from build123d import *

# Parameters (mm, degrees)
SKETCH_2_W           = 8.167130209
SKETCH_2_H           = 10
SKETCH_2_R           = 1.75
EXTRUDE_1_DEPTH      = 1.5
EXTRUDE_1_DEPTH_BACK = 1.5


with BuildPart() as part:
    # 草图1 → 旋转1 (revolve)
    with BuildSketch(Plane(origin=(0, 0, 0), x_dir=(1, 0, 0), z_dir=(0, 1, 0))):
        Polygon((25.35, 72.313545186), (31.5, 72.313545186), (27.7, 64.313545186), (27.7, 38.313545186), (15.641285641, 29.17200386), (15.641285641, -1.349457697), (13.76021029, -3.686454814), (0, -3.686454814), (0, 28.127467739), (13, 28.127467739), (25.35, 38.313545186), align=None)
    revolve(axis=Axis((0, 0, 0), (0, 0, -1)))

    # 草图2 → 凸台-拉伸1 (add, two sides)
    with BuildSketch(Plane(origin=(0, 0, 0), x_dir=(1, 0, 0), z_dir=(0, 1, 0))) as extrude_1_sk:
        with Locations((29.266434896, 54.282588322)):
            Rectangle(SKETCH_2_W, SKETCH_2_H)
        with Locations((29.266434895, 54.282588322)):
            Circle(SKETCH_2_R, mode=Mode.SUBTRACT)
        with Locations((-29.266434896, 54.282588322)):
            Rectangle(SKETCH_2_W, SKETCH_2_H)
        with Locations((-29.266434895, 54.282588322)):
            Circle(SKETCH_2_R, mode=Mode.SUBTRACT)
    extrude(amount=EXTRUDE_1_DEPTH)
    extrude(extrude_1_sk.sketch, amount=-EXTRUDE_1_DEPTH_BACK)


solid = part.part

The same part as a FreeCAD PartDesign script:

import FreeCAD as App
import Part
import Sketcher
from FreeCAD import Vector

doc = App.newDocument("Part")
body = doc.addObject("PartDesign::Body", "Body")

sketch1 = body.newObject("Sketcher::SketchObject", "Sketch")
sketch1.AttachmentSupport = (doc.getObject("XZ_Plane"), [""])
sketch1.MapMode = "FlatFace"
sketch1.addGeometry(Part.LineSegment(Vector(31.5, -72.3, 0), Vector(25.4, -72.3, 0)), False)
sketch1.addGeometry(Part.LineSegment(Vector(25.4, -72.3, 0), Vector(25.4, -38.3, 0)), False)
sketch1.addGeometry(Part.LineSegment(Vector(25.4, -38.3, 0), Vector(13, -28.1, 0)), False)
sketch1.addGeometry(Part.LineSegment(Vector(13, -28.1, 0), Vector(0, -28.1, 0)), False)
sketch1.addGeometry(Part.LineSegment(Vector(0, -28.1, 0), Vector(0, 3.7, 0)), False)
sketch1.addGeometry(Part.LineSegment(Vector(0, 3.7, 0), Vector(13.8, 3.7, 0)), False)
sketch1.addGeometry(Part.LineSegment(Vector(13.8, 3.7, 0), Vector(15.6, 1.3, 0)), False)
sketch1.addGeometry(Part.LineSegment(Vector(15.6, 1.3, 0), Vector(15.6, -29.2, 0)), False)
sketch1.addGeometry(Part.LineSegment(Vector(15.6, -29.2, 0), Vector(27.7, -38.3, 0)), False)
sketch1.addGeometry(Part.LineSegment(Vector(27.7, -38.3, 0), Vector(27.7, -64.3, 0)), False)
sketch1.addGeometry(Part.LineSegment(Vector(27.7, -64.3, 0), Vector(31.5, -72.3, 0)), False)
sketch1.addConstraint(Sketcher.Constraint("Coincident", 0, 2, 1, 1))
sketch1.addConstraint(Sketcher.Constraint("Coincident", 1, 2, 2, 1))
sketch1.addConstraint(Sketcher.Constraint("Coincident", 2, 2, 3, 1))
sketch1.addConstraint(Sketcher.Constraint("Coincident", 3, 2, 4, 1))
sketch1.addConstraint(Sketcher.Constraint("Coincident", 4, 2, 5, 1))
sketch1.addConstraint(Sketcher.Constraint("Coincident", 5, 2, 6, 1))
sketch1.addConstraint(Sketcher.Constraint("Coincident", 6, 2, 7, 1))
sketch1.addConstraint(Sketcher.Constraint("Coincident", 7, 2, 8, 1))
sketch1.addConstraint(Sketcher.Constraint("Coincident", 8, 2, 9, 1))
sketch1.addConstraint(Sketcher.Constraint("Coincident", 9, 2, 10, 1))
sketch1.addConstraint(Sketcher.Constraint("Coincident", 10, 2, 0, 1))
sketch1.addConstraint(Sketcher.Constraint("Horizontal", 0))
sketch1.addConstraint(Sketcher.Constraint("Vertical", 1))
sketch1.addConstraint(Sketcher.Constraint("Horizontal", 3))
sketch1.addConstraint(Sketcher.Constraint("Vertical", 4))
sketch1.addConstraint(Sketcher.Constraint("Horizontal", 5))
sketch1.addConstraint(Sketcher.Constraint("Vertical", 7))
sketch1.addConstraint(Sketcher.Constraint("Vertical", 9))
sketch1.addConstraint(Sketcher.Constraint("PointOnObject", 3, 2, -2))
sketch1.addConstraint(Sketcher.Constraint("Horizontal", 1, 2, 8, 2))
sketch1.addConstraint(Sketcher.Constraint("DistanceX", 3, 2, 3, 1, 13.0))
sketch1.addConstraint(Sketcher.Constraint("DistanceY", 1, 1, 1, 2, 34.0))
sketch1.addConstraint(Sketcher.Constraint("DistanceY", 9, 2, 9, 1, 26.0))
sketch1.addConstraint(Sketcher.Constraint("Distance", 6, 3.0))
sketch1.addConstraint(Sketcher.Constraint("DistanceY", 1, 2, 4, 2, 42.0))
sketch1.addConstraint(Sketcher.Constraint("DistanceX", 0, 2, 0, 1, 6.15))
sketch1.addConstraint(Sketcher.Constraint("DistanceX", -1, 1, 8, 2, 27.7))
sketch1.addConstraint(Sketcher.Constraint("DistanceX", -1, 1, 10, 2, 31.5))
sketch1.addConstraint(Sketcher.Constraint("DistanceX", 5, 1, 5, 2, 13.76021))
sketch1.addConstraint(Sketcher.Constraint("DistanceY", 7, 2, 7, 1, 30.521462))
sketch1.addConstraint(Sketcher.Constraint("DistanceY", 4, 1, 4, 2, 31.813923))
sketch1.addConstraint(Sketcher.Constraint("DistanceY", 1, 2, 7, 2, 9.141541))
sketch1.addConstraint(Sketcher.Constraint("DistanceY", 0, 2, -1, 1, 72.313545))
revolution = body.newObject("PartDesign::Revolution", "Revolution")
revolution.Profile = sketch1
revolution.ReferenceAxis = (sketch1, ["V_Axis"])
revolution.Angle = 360

sketch2 = body.newObject("Sketcher::SketchObject", "Sketch001")
sketch2.AttachmentSupport = (doc.getObject("XZ_Plane"), [""])
sketch2.MapMode = "FlatFace"
sketch2.addGeometry(Part.LineSegment(Vector(25.2, -59.3, 0), Vector(25.2, -49.3, 0)), False)
sketch2.addGeometry(Part.LineSegment(Vector(25.2, -49.3, 0), Vector(33.4, -49.3, 0)), False)
sketch2.addGeometry(Part.LineSegment(Vector(33.4, -49.3, 0), Vector(33.4, -59.3, 0)), False)
sketch2.addGeometry(Part.LineSegment(Vector(33.4, -59.3, 0), Vector(25.2, -59.3, 0)), False)
sketch2.addGeometry(Part.Circle(Vector(29.3, -54.3, 0), Vector(0, 0, 1), 1.8), False)
sketch2.addGeometry(Part.LineSegment(Vector(-33.4, -59.3, 0), Vector(-33.4, -49.3, 0)), False)
sketch2.addGeometry(Part.LineSegment(Vector(-33.4, -49.3, 0), Vector(-25.2, -49.3, 0)), False)
sketch2.addGeometry(Part.LineSegment(Vector(-25.2, -49.3, 0), Vector(-25.2, -59.3, 0)), False)
sketch2.addGeometry(Part.LineSegment(Vector(-25.2, -59.3, 0), Vector(-33.4, -59.3, 0)), False)
sketch2.addGeometry(Part.Circle(Vector(-29.3, -54.3, 0), Vector(0, 0, 1), 1.8), False)
sketch2.addConstraint(Sketcher.Constraint("Coincident", 0, 2, 1, 1))
sketch2.addConstraint(Sketcher.Constraint("Coincident", 1, 2, 2, 1))
sketch2.addConstraint(Sketcher.Constraint("Coincident", 2, 2, 3, 1))
sketch2.addConstraint(Sketcher.Constraint("Coincident", 3, 2, 0, 1))
sketch2.addConstraint(Sketcher.Constraint("Coincident", 5, 2, 6, 1))
sketch2.addConstraint(Sketcher.Constraint("Coincident", 6, 2, 7, 1))
sketch2.addConstraint(Sketcher.Constraint("Coincident", 7, 2, 8, 1))
sketch2.addConstraint(Sketcher.Constraint("Coincident", 8, 2, 5, 1))
sketch2.addConstraint(Sketcher.Constraint("Vertical", 0))
sketch2.addConstraint(Sketcher.Constraint("Horizontal", 1))
sketch2.addConstraint(Sketcher.Constraint("Vertical", 2))
sketch2.addConstraint(Sketcher.Constraint("Horizontal", 3))
sketch2.addConstraint(Sketcher.Constraint("Vertical", 5))
sketch2.addConstraint(Sketcher.Constraint("Horizontal", 6))
sketch2.addConstraint(Sketcher.Constraint("Vertical", 7))
sketch2.addConstraint(Sketcher.Constraint("Horizontal", 8))
sketch2.addConstraint(Sketcher.Constraint("Equal", 4, 9))
sketch2.addConstraint(Sketcher.Constraint("Symmetric", 4, 3, 9, 3, -2))
sketch2.addConstraint(Sketcher.Constraint("Symmetric", 1, 2, 5, 2, -2))
sketch2.addConstraint(Sketcher.Constraint("Symmetric", 3, 2, 7, 2, -2))
sketch2.addConstraint(Sketcher.Constraint("Diameter", 4, 3.5))
sketch2.addConstraint(Sketcher.Constraint("DistanceY", 0, 1, 0, 2, 10.0))
sketch2.addConstraint(Sketcher.Constraint("DistanceY", 4, 3, 0, 2, 5.0))
sketch2.addConstraint(Sketcher.Constraint("DistanceX", 5, 2, 1, 2, 66.7))
sketch2.addConstraint(Sketcher.Constraint("DistanceX", 1, 1, 1, 2, 8.16713))
sketch2.addConstraint(Sketcher.Constraint("DistanceY", 4, 3, -1, 1, 54.282588))
sketch2.addConstraint(Sketcher.Constraint("DistanceX", 9, 3, 4, 3, 58.53287))
pad1 = body.newObject("PartDesign::Pad", "Pad")
pad1.Profile = sketch2
pad1.Type = "TwoLengths"
pad1.Length = 1.5
pad1.Length2 = 1.5
pad1.Reversed = True

doc.recompute()
